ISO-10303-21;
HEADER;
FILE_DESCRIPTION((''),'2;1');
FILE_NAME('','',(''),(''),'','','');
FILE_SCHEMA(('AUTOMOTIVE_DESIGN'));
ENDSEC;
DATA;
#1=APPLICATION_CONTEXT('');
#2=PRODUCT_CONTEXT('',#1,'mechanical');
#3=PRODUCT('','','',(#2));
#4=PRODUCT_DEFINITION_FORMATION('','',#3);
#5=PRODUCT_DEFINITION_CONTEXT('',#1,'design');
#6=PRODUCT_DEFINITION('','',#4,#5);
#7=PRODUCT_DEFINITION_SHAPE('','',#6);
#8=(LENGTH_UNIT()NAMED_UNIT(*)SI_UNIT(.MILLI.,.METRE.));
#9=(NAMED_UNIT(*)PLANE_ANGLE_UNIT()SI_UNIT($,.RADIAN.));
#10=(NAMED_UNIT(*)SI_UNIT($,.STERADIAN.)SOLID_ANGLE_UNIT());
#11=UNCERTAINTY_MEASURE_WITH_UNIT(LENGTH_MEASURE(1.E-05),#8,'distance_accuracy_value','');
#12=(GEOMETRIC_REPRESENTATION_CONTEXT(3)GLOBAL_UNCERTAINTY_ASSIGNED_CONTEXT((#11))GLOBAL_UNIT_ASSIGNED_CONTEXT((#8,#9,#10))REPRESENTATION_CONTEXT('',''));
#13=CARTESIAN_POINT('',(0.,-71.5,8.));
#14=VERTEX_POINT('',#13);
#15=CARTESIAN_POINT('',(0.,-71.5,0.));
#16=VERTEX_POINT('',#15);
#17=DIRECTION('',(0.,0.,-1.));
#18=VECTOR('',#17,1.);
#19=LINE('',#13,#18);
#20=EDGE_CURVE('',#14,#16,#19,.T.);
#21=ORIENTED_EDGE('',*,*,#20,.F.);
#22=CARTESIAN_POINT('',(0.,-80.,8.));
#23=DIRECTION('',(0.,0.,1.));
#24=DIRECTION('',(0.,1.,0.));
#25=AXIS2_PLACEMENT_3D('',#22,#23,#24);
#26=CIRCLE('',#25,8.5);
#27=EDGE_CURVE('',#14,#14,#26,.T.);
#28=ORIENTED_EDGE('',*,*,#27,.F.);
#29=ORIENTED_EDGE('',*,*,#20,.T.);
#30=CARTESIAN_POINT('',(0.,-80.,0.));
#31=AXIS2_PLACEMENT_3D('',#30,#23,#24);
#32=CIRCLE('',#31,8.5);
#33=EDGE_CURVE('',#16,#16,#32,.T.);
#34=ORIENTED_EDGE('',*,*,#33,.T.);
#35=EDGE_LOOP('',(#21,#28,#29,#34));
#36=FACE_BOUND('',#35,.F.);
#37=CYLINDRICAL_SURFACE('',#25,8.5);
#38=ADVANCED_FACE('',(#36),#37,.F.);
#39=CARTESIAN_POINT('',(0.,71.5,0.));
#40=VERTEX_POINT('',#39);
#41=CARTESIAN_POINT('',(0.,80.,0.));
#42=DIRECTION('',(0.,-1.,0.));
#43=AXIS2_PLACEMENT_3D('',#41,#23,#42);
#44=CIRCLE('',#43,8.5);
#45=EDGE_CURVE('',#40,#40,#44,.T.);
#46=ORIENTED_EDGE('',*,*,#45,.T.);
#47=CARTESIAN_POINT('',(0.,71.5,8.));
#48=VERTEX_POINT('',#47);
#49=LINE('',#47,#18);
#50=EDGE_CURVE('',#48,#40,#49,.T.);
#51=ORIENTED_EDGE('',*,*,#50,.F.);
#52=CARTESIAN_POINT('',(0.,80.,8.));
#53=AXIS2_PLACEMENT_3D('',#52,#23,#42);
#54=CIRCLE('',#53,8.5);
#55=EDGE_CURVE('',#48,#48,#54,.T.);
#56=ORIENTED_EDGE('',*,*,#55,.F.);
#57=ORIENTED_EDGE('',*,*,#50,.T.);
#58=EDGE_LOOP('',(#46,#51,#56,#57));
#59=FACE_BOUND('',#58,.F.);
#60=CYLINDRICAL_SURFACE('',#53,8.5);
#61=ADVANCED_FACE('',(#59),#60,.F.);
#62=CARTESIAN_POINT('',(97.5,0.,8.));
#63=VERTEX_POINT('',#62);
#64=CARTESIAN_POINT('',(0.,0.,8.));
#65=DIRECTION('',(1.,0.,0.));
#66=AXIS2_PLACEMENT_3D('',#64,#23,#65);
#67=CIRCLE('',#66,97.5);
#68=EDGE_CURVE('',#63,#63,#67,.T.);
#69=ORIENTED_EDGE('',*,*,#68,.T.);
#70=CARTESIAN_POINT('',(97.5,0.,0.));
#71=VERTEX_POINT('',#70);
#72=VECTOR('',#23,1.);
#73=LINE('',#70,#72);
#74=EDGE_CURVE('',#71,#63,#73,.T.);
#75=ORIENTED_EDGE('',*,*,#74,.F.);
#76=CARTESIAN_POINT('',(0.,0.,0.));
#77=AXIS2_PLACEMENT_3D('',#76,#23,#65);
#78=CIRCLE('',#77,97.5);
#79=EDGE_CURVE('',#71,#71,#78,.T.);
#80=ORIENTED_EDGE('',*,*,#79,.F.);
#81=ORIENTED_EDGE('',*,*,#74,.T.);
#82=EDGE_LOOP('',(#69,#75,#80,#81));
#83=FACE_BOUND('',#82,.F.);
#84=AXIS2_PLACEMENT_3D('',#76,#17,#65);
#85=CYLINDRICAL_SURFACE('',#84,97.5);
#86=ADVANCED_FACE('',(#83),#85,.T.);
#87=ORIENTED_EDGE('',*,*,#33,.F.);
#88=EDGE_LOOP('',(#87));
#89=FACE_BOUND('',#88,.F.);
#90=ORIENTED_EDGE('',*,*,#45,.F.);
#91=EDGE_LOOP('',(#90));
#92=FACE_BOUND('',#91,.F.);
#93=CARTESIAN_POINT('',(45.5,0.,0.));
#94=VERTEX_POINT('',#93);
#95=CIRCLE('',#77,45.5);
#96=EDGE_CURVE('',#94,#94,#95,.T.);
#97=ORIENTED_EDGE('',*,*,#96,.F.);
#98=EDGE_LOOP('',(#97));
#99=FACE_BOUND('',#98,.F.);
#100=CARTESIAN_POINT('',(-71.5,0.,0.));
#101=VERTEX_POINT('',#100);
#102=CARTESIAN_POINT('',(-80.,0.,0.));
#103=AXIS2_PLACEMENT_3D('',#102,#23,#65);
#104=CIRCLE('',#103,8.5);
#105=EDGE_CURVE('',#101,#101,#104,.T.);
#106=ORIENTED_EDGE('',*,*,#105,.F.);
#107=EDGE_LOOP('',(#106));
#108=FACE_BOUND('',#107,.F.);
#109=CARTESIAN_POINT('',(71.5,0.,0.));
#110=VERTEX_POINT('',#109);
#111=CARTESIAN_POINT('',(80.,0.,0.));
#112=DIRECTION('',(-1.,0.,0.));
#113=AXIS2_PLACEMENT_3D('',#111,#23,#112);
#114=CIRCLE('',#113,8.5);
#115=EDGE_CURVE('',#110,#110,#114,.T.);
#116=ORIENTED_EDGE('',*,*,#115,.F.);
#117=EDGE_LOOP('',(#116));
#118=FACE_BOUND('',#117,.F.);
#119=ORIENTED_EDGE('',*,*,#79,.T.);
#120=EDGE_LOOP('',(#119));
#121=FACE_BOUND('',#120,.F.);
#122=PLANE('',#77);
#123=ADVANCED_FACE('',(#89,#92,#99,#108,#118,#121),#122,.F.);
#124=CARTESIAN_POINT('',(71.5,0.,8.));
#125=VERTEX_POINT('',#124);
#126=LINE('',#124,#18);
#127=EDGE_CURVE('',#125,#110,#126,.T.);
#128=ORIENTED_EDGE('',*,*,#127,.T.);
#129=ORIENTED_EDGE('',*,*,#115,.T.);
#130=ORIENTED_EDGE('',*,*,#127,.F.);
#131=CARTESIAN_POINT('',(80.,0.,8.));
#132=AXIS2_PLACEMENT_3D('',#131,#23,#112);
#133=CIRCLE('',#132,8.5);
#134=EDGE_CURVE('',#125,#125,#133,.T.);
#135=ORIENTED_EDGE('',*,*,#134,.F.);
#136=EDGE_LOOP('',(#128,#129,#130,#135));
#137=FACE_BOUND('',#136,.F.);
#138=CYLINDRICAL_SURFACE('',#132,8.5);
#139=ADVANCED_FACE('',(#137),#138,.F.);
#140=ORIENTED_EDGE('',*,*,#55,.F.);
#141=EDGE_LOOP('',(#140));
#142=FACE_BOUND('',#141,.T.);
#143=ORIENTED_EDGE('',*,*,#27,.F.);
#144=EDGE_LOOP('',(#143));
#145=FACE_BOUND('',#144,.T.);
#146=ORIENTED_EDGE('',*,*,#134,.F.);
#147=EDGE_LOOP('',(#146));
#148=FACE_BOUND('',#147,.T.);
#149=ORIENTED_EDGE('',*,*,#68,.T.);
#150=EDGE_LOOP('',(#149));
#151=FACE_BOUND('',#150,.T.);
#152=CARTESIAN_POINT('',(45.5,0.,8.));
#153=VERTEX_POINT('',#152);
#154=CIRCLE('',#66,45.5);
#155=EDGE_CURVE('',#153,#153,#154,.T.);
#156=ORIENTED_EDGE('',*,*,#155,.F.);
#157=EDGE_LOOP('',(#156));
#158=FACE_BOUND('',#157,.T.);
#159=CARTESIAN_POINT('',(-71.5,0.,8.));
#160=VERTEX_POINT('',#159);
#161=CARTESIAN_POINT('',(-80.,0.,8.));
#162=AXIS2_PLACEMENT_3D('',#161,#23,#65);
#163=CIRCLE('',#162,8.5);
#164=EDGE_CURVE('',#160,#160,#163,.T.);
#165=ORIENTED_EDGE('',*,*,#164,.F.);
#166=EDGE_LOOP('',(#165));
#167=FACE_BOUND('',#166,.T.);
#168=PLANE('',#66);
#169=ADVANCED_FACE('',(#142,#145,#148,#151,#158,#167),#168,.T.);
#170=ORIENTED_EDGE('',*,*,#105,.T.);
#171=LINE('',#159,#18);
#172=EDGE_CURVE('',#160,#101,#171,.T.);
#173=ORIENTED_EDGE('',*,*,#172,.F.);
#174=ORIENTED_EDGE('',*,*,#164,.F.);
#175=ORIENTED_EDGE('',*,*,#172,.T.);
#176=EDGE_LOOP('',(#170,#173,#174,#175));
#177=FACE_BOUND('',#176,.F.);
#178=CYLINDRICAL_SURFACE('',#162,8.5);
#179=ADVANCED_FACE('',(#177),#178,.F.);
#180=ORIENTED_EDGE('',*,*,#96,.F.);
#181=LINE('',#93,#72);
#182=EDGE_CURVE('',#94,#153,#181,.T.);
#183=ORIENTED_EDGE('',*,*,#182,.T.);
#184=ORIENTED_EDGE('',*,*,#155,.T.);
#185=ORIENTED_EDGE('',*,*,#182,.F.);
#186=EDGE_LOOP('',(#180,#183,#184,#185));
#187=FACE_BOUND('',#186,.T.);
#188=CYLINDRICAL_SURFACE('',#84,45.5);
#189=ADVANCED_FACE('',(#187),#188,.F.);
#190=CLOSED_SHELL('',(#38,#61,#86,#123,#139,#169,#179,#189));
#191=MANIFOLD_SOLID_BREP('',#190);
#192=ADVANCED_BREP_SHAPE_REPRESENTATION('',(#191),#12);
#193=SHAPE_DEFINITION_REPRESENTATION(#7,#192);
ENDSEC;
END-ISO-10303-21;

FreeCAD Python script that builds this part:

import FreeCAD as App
import Part
import Sketcher
Q = App.Units.Quantity

doc = App.newDocument("Part")
params = doc.addObject("Spreadsheet::Sheet", "Params")
for row, (alias, value) in enumerate([
    ("sketch1_diameter", "195 mm"),
    ("sketch1_diameter2", "91 mm"),
    ("pad1_length", "8 mm"),
    ("sketch2_diameter", "17 mm"),
    ("pocket1_length", "8 mm"),
], start=1):
    params.set(f"A{row}", alias)
    params.set(f"B{row}", "=" + value)
    params.setAlias(f"B{row}", alias)

body = doc.addObject("PartDesign::Body", "Body")

# Sketch on XY plane
sketch1 = body.newObject("Sketcher::SketchObject", "Sketch")
sketch1.AttachmentSupport = (doc.getObject("XY_Plane"), [""])
sketch1.MapMode = "FlatFace"
sketch1.addGeometry([
    Part.Circle(App.Vector(0, 0, 0), App.Vector(0, 0, 1), 98),
    Part.Circle(App.Vector(0, 0, 0), App.Vector(0, 0, 1), 46),
], False)
sketch1.addConstraint([
    Sketcher.Constraint("Coincident", 0, 3, -1, 1),
    Sketcher.Constraint("Coincident", 1, 3, -1, 1),
    Sketcher.Constraint("Diameter", 0, Q("195 mm")),
    Sketcher.Constraint("Diameter", 1, Q("91 mm")),
])
sketch1.setExpression("Constraints[2]", "Params.sketch1_diameter")
sketch1.setExpression("Constraints[3]", "Params.sketch1_diameter2")
pad1 = body.newObject("PartDesign::Pad", "Pad")
pad1.Profile = sketch1
pad1.setExpression("Length", "Params.pad1_length")

# Sketch on XY plane
sketch2 = body.newObject("Sketcher::SketchObject", "Sketch001")
sketch2.AttachmentSupport = (doc.getObject("XY_Plane"), [""])
sketch2.MapMode = "FlatFace"
sketch2.AttachmentOffset = App.Placement(App.Vector(0, 0, 8), App.Rotation())
sketch2.addGeometry(Part.Circle(App.Vector(-80, 0, 0), App.Vector(0, 0, 1), 8), False)
sketch2.addConstraint([
    Sketcher.Constraint("PointOnObject", 0, 3, -1),
    Sketcher.Constraint("Diameter", 0, Q("17 mm")),
    Sketcher.Constraint("DistanceX", 0, 3, -1, 1, Q("80 mm")),
])
sketch2.setExpression("Constraints[1]", "Params.sketch2_diameter")
pocket1 = body.newObject("PartDesign::Pocket", "Pocket")
pocket1.Profile = sketch2
pocket1.setExpression("Length", "Params.pocket1_length")
doc.recompute()

polarpattern = body.newObject("PartDesign::PolarPattern", "PolarPattern")
polarpattern.Originals = [pocket1]
polarpattern.Axis = (doc.getObject("Z_Axis"), [""])
polarpattern.Angle = 360
polarpattern.Occurrences = 4
body.Tip = polarpattern

doc.recompute()
